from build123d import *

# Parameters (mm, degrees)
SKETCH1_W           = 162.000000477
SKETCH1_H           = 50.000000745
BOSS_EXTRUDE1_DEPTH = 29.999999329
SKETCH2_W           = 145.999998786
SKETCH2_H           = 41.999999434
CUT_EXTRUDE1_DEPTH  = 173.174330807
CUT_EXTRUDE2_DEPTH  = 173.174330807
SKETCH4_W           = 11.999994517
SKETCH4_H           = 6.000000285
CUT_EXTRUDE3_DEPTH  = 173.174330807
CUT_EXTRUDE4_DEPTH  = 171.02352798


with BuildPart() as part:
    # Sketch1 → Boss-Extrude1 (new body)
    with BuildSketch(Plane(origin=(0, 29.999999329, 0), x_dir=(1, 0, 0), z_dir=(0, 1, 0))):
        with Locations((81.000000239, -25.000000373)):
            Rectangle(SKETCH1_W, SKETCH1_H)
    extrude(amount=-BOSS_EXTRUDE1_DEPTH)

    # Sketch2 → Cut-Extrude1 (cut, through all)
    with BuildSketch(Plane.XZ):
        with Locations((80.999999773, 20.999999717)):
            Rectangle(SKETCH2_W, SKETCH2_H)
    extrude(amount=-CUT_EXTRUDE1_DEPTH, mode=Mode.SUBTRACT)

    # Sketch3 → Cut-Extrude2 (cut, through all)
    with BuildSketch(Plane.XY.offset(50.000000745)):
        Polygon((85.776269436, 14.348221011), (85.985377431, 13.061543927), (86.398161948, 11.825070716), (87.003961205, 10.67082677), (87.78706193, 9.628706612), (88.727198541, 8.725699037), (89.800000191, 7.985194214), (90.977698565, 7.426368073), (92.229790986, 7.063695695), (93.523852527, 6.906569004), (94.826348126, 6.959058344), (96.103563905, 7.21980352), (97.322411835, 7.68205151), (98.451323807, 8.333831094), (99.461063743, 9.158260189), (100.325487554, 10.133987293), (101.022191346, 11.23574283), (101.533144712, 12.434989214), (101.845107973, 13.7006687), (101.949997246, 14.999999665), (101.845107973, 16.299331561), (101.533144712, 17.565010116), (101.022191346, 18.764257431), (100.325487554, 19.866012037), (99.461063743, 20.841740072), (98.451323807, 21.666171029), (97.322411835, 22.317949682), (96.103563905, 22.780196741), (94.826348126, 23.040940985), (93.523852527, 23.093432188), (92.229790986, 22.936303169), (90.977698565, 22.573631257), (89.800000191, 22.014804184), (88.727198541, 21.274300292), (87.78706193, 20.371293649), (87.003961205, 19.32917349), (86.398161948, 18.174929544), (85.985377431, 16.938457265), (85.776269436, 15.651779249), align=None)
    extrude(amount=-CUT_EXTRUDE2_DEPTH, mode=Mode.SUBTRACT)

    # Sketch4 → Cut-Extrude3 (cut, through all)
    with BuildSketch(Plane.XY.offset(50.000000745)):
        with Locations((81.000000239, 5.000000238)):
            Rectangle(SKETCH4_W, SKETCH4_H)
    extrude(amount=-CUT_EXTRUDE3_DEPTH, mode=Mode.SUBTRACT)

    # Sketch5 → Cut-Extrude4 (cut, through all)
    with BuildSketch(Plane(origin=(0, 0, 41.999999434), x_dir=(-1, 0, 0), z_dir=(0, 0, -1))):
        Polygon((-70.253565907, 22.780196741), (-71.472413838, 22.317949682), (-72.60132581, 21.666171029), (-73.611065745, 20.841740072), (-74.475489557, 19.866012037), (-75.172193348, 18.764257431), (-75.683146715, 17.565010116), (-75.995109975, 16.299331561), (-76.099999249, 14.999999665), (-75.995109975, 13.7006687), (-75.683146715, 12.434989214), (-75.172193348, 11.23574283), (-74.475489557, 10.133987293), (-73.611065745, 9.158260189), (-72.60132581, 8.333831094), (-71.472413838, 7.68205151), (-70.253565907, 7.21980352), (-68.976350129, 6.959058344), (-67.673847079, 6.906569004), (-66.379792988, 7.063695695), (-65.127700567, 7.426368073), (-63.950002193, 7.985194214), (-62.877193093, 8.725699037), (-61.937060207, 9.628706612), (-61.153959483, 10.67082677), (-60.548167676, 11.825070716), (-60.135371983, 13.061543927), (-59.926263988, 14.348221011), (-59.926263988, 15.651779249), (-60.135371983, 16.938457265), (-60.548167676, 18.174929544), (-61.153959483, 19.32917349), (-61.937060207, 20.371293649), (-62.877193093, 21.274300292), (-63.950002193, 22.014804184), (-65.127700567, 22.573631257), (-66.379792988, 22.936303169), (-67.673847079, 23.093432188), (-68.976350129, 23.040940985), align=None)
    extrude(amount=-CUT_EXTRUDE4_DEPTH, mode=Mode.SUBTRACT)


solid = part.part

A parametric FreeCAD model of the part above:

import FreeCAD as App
import Part
import Sketcher


def add_polygon(sketch, points):
    """Adds a closed chain of lines whose ends are joined by coincident constraints."""
    first, n = sketch.GeometryCount, len(points)
    for a, b in zip(points, points[1:] + points[:1]):
        sketch.addGeometry(Part.LineSegment(App.Vector(*a, 0), App.Vector(*b, 0)), False)
    for i in range(n):
        sketch.addConstraint(Sketcher.Constraint("Coincident", first + i, 2, first + (i + 1) % n, 1))

doc = App.newDocument("Part")
body = doc.addObject("PartDesign::Body", "Body")

# Sketch on XZ plane
sketch1 = doc.addObject("Sketcher::SketchObject", "Sketch")
body.addObject(sketch1)
sketch1.AttachmentSupport = (doc.XZ_Plane, [""])
sketch1.MapMode = "FlatFace"
sketch1.AttachmentOffset = App.Placement(App.Vector(0, 0, -29.999999), App.Rotation())
add_polygon(sketch1, [(0, 0), (0, 50.000001), (162, 50.000001), (162, 0)])  # lines 0-3
sketch1.addConstraint([
    Sketcher.Constraint("Vertical", 0),
    Sketcher.Constraint("Horizontal", 1),
    Sketcher.Constraint("Vertical", 2),
    Sketcher.Constraint("Horizontal", 3),
    Sketcher.Constraint("Coincident", 3, 2, -1, 1),
    Sketcher.Constraint("DistanceX", 1, 1, 1, 2, 162.0),
    Sketcher.Constraint("DistanceY", 0, 1, 0, 2, 50.000001),
])
pad1 = doc.addObject("PartDesign::Pad", "Pad")
body.addObject(pad1)
pad1.Profile = sketch1
pad1.Length = 29.999999

# Sketch on XZ plane
sketch2 = doc.addObject("Sketcher::SketchObject", "Sketch001")
body.addObject(sketch2)
sketch2.AttachmentSupport = (doc.XZ_Plane, [""])
sketch2.MapMode = "FlatFace"
add_polygon(sketch2, [(8, 41.999999), (8, 0), (153.999999, 0), (153.999999, 41.999999)])  # lines 0-3
sketch2.addConstraint([
    Sketcher.Constraint("Vertical", 0),
    Sketcher.Constraint("Horizontal", 1),
    Sketcher.Constraint("Vertical", 2),
    Sketcher.Constraint("Horizontal", 3),
    Sketcher.Constraint("PointOnObject", 0, 2, -1),
    Sketcher.Constraint("DistanceX", 1, 1, 1, 2, 145.999999),
    Sketcher.Constraint("DistanceY", 0, 2, 0, 1, 41.999999),
    Sketcher.Constraint("DistanceX", -1, 1, 0, 2, 8.0),
])
pocket1 = doc.addObject("PartDesign::Pocket", "Pocket")
body.addObject(pocket1)
pocket1.Profile = sketch2
pocket1.Type = "ThroughAll"

# Sketch on XY plane
sketch3 = doc.addObject("Sketcher::SketchObject", "Sketch002")
body.addObject(sketch3)
sketch3.AttachmentSupport = (doc.XY_Plane, [""])
sketch3.MapMode = "FlatFace"
sketch3.AttachmentOffset = App.Placement(App.Vector(0, 0, 50.000001), App.Rotation())
add_polygon(sketch3, [(85.776269, 14.348221), (85.985377, 13.061544), (86.398162, 11.825071), (87.003961, 10.670827), (87.787062, 9.628707), (88.727199, 8.725699), (89.8, 7.985194), (90.977699, 7.426368), (92.229791, 7.063696), (93.523853, 6.906569), (94.826348, 6.959058), (96.103564, 7.219804), (97.322412, 7.682052), (98.451324, 8.333831), (99.461064, 9.15826), (100.325488, 10.133987), (101.022191, 11.235743), (101.533145, 12.434989), (101.845108, 13.700669), (101.949997, 15), (101.845108, 16.299332), (101.533145, 17.56501), (101.022191, 18.764257), (100.325488, 19.866012), (99.461064, 20.84174), (98.451324, 21.666171), (97.322412, 22.31795), (96.103564, 22.780197), (94.826348, 23.040941), (93.523853, 23.093432), (92.229791, 22.936303), (90.977699, 22.573631), (89.8, 22.014804), (88.727199, 21.2743), (87.787062, 20.371294), (87.003961, 19.329173), (86.398162, 18.17493), (85.985377, 16.938457), (85.776269, 15.651779)])  # lines 0-38
sketch3.addConstraint([
    Sketcher.Constraint("Vertical", 38),
    Sketcher.Constraint("DistanceY", -1, 1, 18, 2, 15.0),
    Sketcher.Constraint("DistanceX", -1, 1, 5, 2, 89.8),
    Sketcher.Constraint("DistanceX", -1, 1, 31, 2, 89.8),
    Sketcher.Constraint("DistanceY", 14, 2, 16, 2, 2.301002),
    Sketcher.Constraint("DistanceY", 20, 2, 22, 2, 2.301002),
    Sketcher.Constraint("DistanceY", 38, 2, 38, 1, 1.303558),
    Sketcher.Constraint("DistanceX", -1, 1, 4, 2, 88.727199),
    Sketcher.Constraint("DistanceY", -1, 1, 4, 2, 8.725699),
    Sketcher.Constraint("DistanceX", -1, 1, 6, 2, 90.977699),
    Sketcher.Constraint("DistanceX", -1, 1, 30, 2, 90.977699),
    Sketcher.Constraint("DistanceX", -1, 1, 32, 2, 88.727199),
    Sketcher.Constraint("DistanceY", -1, 1, 32, 2, 21.2743),
    Sketcher.Constraint("DistanceX", 1, 2, 2, 2, 0.605799),
    Sketcher.Constraint("DistanceX", 2, 2, 3, 2, 0.783101),
    Sketcher.Constraint("DistanceY", 7, 2, 5, 2, 0.921499),
    Sketcher.Constraint("DistanceY", 8, 2, 6, 2, 0.519799),
    Sketcher.Constraint("DistanceX", 10, 2, 13, 2, 3.3575),
    Sketcher.Constraint("DistanceY", 9, 2, 13, 2, 2.199202),
    Sketcher.Constraint("DistanceX", 26, 2, 23, 2, 3.3575),
    Sketcher.Constraint("DistanceY", 23, 2, 27, 2, 2.199201),
    Sketcher.Constraint("DistanceY", 30, 2, 28, 2, 0.519801),
    Sketcher.Constraint("DistanceY", 31, 2, 29, 2, 0.921499),
    Sketcher.Constraint("DistanceX", 34, 2, 33, 2, 0.783101),
    Sketcher.Constraint("DistanceX", 35, 2, 34, 2, 0.605799),
    Sketcher.Constraint("Distance", 0, 1.303558),
    Sketcher.Constraint("Distance", 2, 1.303561),
    Sketcher.Constraint("Distance", 7, 1.303559),
    Sketcher.Constraint("Distance", 10, 1.30356),
    Sketcher.Constraint("Distance", 11, 1.303558),
    Sketcher.Constraint("Distance", 14, 1.303561),
    Sketcher.Constraint("Distance", 16, 1.303559),
    Sketcher.Constraint("Distance", 17, 1.303559),
    Sketcher.Constraint("Distance", 19, 1.303559),
    Sketcher.Constraint("Distance", 21, 1.30356),
    Sketcher.Constraint("Distance", 23, 1.303562),
    Sketcher.Constraint("Distance", 27, 1.30356),
    Sketcher.Constraint("Distance", 30, 1.303559),
    Sketcher.Constraint("Distance", 35, 1.303561),
    Sketcher.Constraint("Distance", 37, 1.303559),
    Sketcher.Constraint("DistanceX", -1, 1, 1, 2, 86.398162),
    Sketcher.Constraint("DistanceY", -1, 1, 1, 2, 11.825071),
    Sketcher.Constraint("DistanceY", -1, 1, 6, 2, 7.426368),
    Sketcher.Constraint("DistanceX", -1, 1, 7, 2, 92.229791),
    Sketcher.Constraint("DistanceX", -1, 1, 9, 2, 94.826348),
    Sketcher.Constraint("DistanceY", -1, 1, 9, 2, 6.959058),
    Sketcher.Constraint("DistanceX", -1, 1, 11, 2, 97.322412),
    Sketcher.Constraint("DistanceY", -1, 1, 11, 2, 7.682052),
    Sketcher.Constraint("DistanceY", -1, 1, 12, 2, 8.333831),
    Sketcher.Constraint("DistanceX", -1, 1, 15, 2, 101.022191),
    Sketcher.Constraint("DistanceY", -1, 1, 16, 2, 12.434989),
    Sketcher.Constraint("DistanceY", -1, 1, 17, 2, 13.700669),
    Sketcher.Constraint("DistanceY", -1, 1, 19, 2, 16.299332),
    Sketcher.Constraint("DistanceY", -1, 1, 20, 2, 17.56501),
    Sketcher.Constraint("DistanceX", -1, 1, 21, 2, 101.022191),
    Sketcher.Constraint("DistanceY", -1, 1, 23, 2, 20.84174),
    Sketcher.Constraint("DistanceY", -1, 1, 24, 2, 21.666171),
    Sketcher.Constraint("DistanceX", -1, 1, 25, 2, 97.322412),
    Sketcher.Constraint("DistanceY", -1, 1, 25, 2, 22.31795),
    Sketcher.Constraint("DistanceX", -1, 1, 27, 2, 94.826348),
    Sketcher.Constraint("DistanceX", -1, 1, 29, 2, 92.229791),
    Sketcher.Constraint("DistanceY", -1, 1, 30, 2, 22.573631),
    Sketcher.Constraint("DistanceX", -1, 1, 33, 2, 87.787062),
    Sketcher.Constraint("DistanceY", -1, 1, 35, 2, 18.17493),
    Sketcher.Constraint("DistanceX", -1, 1, 37, 2, 85.776269),
    Sketcher.Constraint("DistanceY", -1, 1, 37, 2, 15.651779),
    Sketcher.Constraint("DistanceY", 3, 2, 2, 2, 1.04212),
    Sketcher.Constraint("DistanceX", 0, 2, 4, 2, 2.741821),
    Sketcher.Constraint("DistanceX", 7, 2, 8, 2, 1.294062),
    Sketcher.Constraint("DistanceX", 11, 2, 12, 2, 1.128912),
    Sketcher.Constraint("DistanceY", 12, 2, 15, 2, 2.901912),
    Sketcher.Constraint("DistanceX", 17, 2, 18, 2, 0.104889),
    Sketcher.Constraint("DistanceY", 17, 2, 21, 2, 5.063589),
    Sketcher.Constraint("DistanceX", 22, 2, 19, 2, 1.51962),
    Sketcher.Constraint("DistanceX", 24, 2, 23, 2, 1.00974),
    Sketcher.Constraint("DistanceX", 28, 2, 26, 2, 2.579711),
    Sketcher.Constraint("DistanceY", 33, 2, 31, 2, 1.643511),
    Sketcher.Constraint("DistanceY", 37, 2, 36, 2, 1.286678),
])
pocket2 = doc.addObject("PartDesign::Pocket", "Pocket001")
body.addObject(pocket2)
pocket2.Profile = sketch3
pocket2.Type = "ThroughAll"

# Sketch on XY plane
sketch4 = doc.addObject("Sketcher::SketchObject", "Sketch003")
body.addObject(sketch4)
sketch4.AttachmentSupport = (doc.XY_Plane, [""])
sketch4.MapMode = "FlatFace"
sketch4.AttachmentOffset = App.Placement(App.Vector(0, 0, 50.000001), App.Rotation())
add_polygon(sketch4, [(75.000003, 8), (75.000003, 2), (86.999997, 2), (86.999997, 8)])  # lines 0-3
sketch4.addConstraint([
    Sketcher.Constraint("Vertical", 0),
    Sketcher.Constraint("Horizontal", 1),
    Sketcher.Constraint("Vertical", 2),
    Sketcher.Constraint("Horizontal", 3),
    Sketcher.Constraint("DistanceY", 0, 2, 0, 1, 6.0),
    Sketcher.Constraint("DistanceY", -1, 1, 0, 2, 2.0),
    Sketcher.Constraint("DistanceX", 1, 1, 1, 2, 11.999995),
    Sketcher.Constraint("DistanceX", -1, 1, 0, 2, 75.000003),
])
pocket3 = doc.addObject("PartDesign::Pocket", "Pocket002")
body.addObject(pocket3)
pocket3.Profile = sketch4
pocket3.Type = "ThroughAll"

# Sketch on XY plane
sketch5 = doc.addObject("Sketcher::SketchObject", "Sketch004")
body.addObject(sketch5)
sketch5.AttachmentSupport = (doc.XY_Plane, [""])
sketch5.MapMode = "FlatFace"
sketch5.AttachmentOffset = App.Placement(App.Vector(0, 0, 41.999999), App.Rotation())
add_polygon(sketch5, [(70.253566, 22.780197), (71.472414, 22.31795), (72.601326, 21.666171), (73.611066, 20.84174), (74.47549, 19.866012), (75.172193, 18.764257), (75.683147, 17.56501), (75.99511, 16.299332), (76.099999, 15), (75.99511, 13.700669), (75.683147, 12.434989), (75.172193, 11.235743), (74.47549, 10.133987), (73.611066, 9.15826), (72.601326, 8.333831), (71.472414, 7.682052), (70.253566, 7.219804), (68.97635, 6.959058), (67.673847, 6.906569), (66.379793, 7.063696), (65.127701, 7.426368), (63.950002, 7.985194), (62.877193, 8.725699), (61.93706, 9.628707), (61.153959, 10.670827), (60.548168, 11.825071), (60.135372, 13.061544), (59.926264, 14.348221), (59.926264, 15.651779), (60.135372, 16.938457), (60.548168, 18.17493), (61.153959, 19.329173), (61.93706, 20.371294), (62.877193, 21.2743), (63.950002, 22.014804), (65.127701, 22.573631), (66.379793, 22.936303), (67.673847, 23.093432), (68.97635, 23.040941)])  # lines 0-38
sketch5.addConstraint([
    Sketcher.Constraint("Vertical", 27),
    Sketcher.Constraint("DistanceY", -1, 1, 7, 2, 15.0),
    Sketcher.Constraint("DistanceX", -1, 1, 7, 2, 76.099999),
    Sketcher.Constraint("DistanceY", 5, 2, 3, 2, 2.301002),
    Sketcher.Constraint("DistanceY", 11, 2, 9, 2, 2.301002),
    Sketcher.Constraint("DistanceY", 27, 1, 27, 2, 1.303558),
    Sketcher.Constraint("DistanceX", -1, 1, 19, 2, 65.127701),
    Sketcher.Constraint("DistanceY", -1, 1, 21, 2, 8.725699),
    Sketcher.Constraint("DistanceY", -1, 1, 32, 2, 21.2743),
    Sketcher.Constraint("DistanceX", -1, 1, 34, 2, 65.127701),
    Sketcher.Constraint("DistanceX", 15, 2, 12, 2, 3.3575),
    Sketcher.Constraint("DistanceY", 16, 2, 12, 2, 2.199202),
    Sketcher.Constraint("DistanceY", 17, 2, 19, 2, 0.519799),
    Sketcher.Constraint("DistanceX", 20, 2, 19, 2, 1.177698),
    Sketcher.Constraint("DistanceY", 18, 2, 20, 2, 0.921499),
    Sketcher.Constraint("DistanceX", 21, 2, 18, 2, 3.5026),
    Sketcher.Constraint("DistanceX", 23, 2, 22, 2, 0.783101),
    Sketcher.Constraint("DistanceX", 30, 2, 31, 2, 0.783101),
    Sketcher.Constraint("DistanceX", 33, 2, 34, 2, 1.177698),
    Sketcher.Constraint("DistanceY", 29, 2, 34, 2, 4.398702),
    Sketcher.Constraint("DistanceY", 33, 2, 35, 2, 0.921499),
    Sketcher.Constraint("DistanceX", 32, 2, 35, 2, 3.5026),
    Sketcher.Constraint("DistanceY", 34, 2, 36, 2, 0.519801),
    Sketcher.Constraint("DistanceX", 38, 2, 2, 2, 3.3575),
    Sketcher.Constraint("Distance", 3, 1.303562),
    Sketcher.Constraint("Distance", 5, 1.30356),
    Sketcher.Constraint("Distance", 7, 1.303559),
    Sketcher.Constraint("Distance", 9, 1.303559),
    Sketcher.Constraint("Distance", 10, 1.303559),
    Sketcher.Constraint("Distance", 12, 1.303561),
    Sketcher.Constraint("Distance", 15, 1.303558),
    Sketcher.Constraint("Distance", 16, 1.30356),
    Sketcher.Constraint("Distance", 17, 1.30356),
    Sketcher.Constraint("Distance", 18, 1.303559),
    Sketcher.Constraint("Distance", 19, 1.303559),
    Sketcher.Constraint("Distance", 21, 1.303559),
    Sketcher.Constraint("Distance", 22, 1.303561),
    Sketcher.Constraint("Distance", 25, 1.303559),
    Sketcher.Constraint("Distance", 26, 1.303558),
    Sketcher.Constraint("Distance", 28, 1.303559),
    Sketcher.Constraint("Distance", 29, 1.303558),
    Sketcher.Constraint("Distance", 32, 1.303561),
    Sketcher.Constraint("Distance", 33, 1.303559),
    Sketcher.Constraint("Distance", 35, 1.303559),
    Sketcher.Constraint("Distance", 36, 1.303559),
    Sketcher.Constraint("Distance", 37, 1.30356),
    Sketcher.Constraint("Distance", 38, 1.30356),
    Sketcher.Constraint("DistanceY", -1, 1, 0, 2, 22.31795),
    Sketcher.Constraint("DistanceY", -1, 1, 1, 2, 21.666171),
    Sketcher.Constraint("DistanceY", -1, 1, 2, 2, 20.84174),
    Sketcher.Constraint("DistanceX", -1, 1, 3, 2, 74.47549),
    Sketcher.Constraint("DistanceY", -1, 1, 5, 2, 17.56501),
    Sketcher.Constraint("DistanceX", -1, 1, 6, 2, 75.99511),
    Sketcher.Constraint("DistanceX", -1, 1, 8, 2, 75.99511),
    Sketcher.Constraint("DistanceY", -1, 1, 8, 2, 13.700669),
    Sketcher.Constraint("DistanceY", -1, 1, 9, 2, 12.434989),
    Sketcher.Constraint("DistanceX", -1, 1, 11, 2, 74.47549),
    Sketcher.Constraint("DistanceY", -1, 1, 12, 2, 9.15826),
    Sketcher.Constraint("DistanceY", -1, 1, 13, 2, 8.333831),
    Sketcher.Constraint("DistanceY", -1, 1, 14, 2, 7.682052),
    Sketcher.Constraint("DistanceX", -1, 1, 16, 2, 68.97635),
    Sketcher.Constraint("DistanceX", -1, 1, 22, 2, 61.93706),
    Sketcher.Constraint("DistanceY", -1, 1, 24, 2, 11.825071),
    Sketcher.Constraint("DistanceX", -1, 1, 25, 2, 60.135372),
    Sketcher.Constraint("DistanceY", -1, 1, 26, 2, 14.348221),
    Sketcher.Constraint("DistanceX", -1, 1, 28, 2, 60.135372),
    Sketcher.Constraint("DistanceY", -1, 1, 29, 2, 18.17493),
    Sketcher.Constraint("DistanceX", -1, 1, 30, 2, 61.153959),
    Sketcher.Constraint("DistanceX", -1, 1, 37, 2, 68.97635),
    Sketcher.Constraint("DistanceX", 0, 2, 1, 2, 1.128912),
    Sketcher.Constraint("DistanceX", 1, 2, 2, 2, 1.00974),
    Sketcher.Constraint("DistanceX", 0, 2, 4, 2, 3.69978),
    Sketcher.Constraint("DistanceX", 2, 2, 5, 2, 2.072081),
    Sketcher.Constraint("DistanceY", 10, 2, 6, 2, 5.063589),
    Sketcher.Constraint("DistanceX", 13, 2, 12, 2, 1.00974),
    Sketcher.Constraint("DistanceY", 22, 2, 23, 2, 1.04212),
    Sketcher.Constraint("DistanceX", 24, 2, 23, 2, 0.605792),
    Sketcher.Constraint("DistanceY", 25, 2, 30, 2, 6.26763),
])
pocket4 = doc.addObject("PartDesign::Pocket", "Pocket003")
body.addObject(pocket4)
pocket4.Profile = sketch5
pocket4.Type = "ThroughAll"
pocket4.Reversed = True

doc.recompute()
